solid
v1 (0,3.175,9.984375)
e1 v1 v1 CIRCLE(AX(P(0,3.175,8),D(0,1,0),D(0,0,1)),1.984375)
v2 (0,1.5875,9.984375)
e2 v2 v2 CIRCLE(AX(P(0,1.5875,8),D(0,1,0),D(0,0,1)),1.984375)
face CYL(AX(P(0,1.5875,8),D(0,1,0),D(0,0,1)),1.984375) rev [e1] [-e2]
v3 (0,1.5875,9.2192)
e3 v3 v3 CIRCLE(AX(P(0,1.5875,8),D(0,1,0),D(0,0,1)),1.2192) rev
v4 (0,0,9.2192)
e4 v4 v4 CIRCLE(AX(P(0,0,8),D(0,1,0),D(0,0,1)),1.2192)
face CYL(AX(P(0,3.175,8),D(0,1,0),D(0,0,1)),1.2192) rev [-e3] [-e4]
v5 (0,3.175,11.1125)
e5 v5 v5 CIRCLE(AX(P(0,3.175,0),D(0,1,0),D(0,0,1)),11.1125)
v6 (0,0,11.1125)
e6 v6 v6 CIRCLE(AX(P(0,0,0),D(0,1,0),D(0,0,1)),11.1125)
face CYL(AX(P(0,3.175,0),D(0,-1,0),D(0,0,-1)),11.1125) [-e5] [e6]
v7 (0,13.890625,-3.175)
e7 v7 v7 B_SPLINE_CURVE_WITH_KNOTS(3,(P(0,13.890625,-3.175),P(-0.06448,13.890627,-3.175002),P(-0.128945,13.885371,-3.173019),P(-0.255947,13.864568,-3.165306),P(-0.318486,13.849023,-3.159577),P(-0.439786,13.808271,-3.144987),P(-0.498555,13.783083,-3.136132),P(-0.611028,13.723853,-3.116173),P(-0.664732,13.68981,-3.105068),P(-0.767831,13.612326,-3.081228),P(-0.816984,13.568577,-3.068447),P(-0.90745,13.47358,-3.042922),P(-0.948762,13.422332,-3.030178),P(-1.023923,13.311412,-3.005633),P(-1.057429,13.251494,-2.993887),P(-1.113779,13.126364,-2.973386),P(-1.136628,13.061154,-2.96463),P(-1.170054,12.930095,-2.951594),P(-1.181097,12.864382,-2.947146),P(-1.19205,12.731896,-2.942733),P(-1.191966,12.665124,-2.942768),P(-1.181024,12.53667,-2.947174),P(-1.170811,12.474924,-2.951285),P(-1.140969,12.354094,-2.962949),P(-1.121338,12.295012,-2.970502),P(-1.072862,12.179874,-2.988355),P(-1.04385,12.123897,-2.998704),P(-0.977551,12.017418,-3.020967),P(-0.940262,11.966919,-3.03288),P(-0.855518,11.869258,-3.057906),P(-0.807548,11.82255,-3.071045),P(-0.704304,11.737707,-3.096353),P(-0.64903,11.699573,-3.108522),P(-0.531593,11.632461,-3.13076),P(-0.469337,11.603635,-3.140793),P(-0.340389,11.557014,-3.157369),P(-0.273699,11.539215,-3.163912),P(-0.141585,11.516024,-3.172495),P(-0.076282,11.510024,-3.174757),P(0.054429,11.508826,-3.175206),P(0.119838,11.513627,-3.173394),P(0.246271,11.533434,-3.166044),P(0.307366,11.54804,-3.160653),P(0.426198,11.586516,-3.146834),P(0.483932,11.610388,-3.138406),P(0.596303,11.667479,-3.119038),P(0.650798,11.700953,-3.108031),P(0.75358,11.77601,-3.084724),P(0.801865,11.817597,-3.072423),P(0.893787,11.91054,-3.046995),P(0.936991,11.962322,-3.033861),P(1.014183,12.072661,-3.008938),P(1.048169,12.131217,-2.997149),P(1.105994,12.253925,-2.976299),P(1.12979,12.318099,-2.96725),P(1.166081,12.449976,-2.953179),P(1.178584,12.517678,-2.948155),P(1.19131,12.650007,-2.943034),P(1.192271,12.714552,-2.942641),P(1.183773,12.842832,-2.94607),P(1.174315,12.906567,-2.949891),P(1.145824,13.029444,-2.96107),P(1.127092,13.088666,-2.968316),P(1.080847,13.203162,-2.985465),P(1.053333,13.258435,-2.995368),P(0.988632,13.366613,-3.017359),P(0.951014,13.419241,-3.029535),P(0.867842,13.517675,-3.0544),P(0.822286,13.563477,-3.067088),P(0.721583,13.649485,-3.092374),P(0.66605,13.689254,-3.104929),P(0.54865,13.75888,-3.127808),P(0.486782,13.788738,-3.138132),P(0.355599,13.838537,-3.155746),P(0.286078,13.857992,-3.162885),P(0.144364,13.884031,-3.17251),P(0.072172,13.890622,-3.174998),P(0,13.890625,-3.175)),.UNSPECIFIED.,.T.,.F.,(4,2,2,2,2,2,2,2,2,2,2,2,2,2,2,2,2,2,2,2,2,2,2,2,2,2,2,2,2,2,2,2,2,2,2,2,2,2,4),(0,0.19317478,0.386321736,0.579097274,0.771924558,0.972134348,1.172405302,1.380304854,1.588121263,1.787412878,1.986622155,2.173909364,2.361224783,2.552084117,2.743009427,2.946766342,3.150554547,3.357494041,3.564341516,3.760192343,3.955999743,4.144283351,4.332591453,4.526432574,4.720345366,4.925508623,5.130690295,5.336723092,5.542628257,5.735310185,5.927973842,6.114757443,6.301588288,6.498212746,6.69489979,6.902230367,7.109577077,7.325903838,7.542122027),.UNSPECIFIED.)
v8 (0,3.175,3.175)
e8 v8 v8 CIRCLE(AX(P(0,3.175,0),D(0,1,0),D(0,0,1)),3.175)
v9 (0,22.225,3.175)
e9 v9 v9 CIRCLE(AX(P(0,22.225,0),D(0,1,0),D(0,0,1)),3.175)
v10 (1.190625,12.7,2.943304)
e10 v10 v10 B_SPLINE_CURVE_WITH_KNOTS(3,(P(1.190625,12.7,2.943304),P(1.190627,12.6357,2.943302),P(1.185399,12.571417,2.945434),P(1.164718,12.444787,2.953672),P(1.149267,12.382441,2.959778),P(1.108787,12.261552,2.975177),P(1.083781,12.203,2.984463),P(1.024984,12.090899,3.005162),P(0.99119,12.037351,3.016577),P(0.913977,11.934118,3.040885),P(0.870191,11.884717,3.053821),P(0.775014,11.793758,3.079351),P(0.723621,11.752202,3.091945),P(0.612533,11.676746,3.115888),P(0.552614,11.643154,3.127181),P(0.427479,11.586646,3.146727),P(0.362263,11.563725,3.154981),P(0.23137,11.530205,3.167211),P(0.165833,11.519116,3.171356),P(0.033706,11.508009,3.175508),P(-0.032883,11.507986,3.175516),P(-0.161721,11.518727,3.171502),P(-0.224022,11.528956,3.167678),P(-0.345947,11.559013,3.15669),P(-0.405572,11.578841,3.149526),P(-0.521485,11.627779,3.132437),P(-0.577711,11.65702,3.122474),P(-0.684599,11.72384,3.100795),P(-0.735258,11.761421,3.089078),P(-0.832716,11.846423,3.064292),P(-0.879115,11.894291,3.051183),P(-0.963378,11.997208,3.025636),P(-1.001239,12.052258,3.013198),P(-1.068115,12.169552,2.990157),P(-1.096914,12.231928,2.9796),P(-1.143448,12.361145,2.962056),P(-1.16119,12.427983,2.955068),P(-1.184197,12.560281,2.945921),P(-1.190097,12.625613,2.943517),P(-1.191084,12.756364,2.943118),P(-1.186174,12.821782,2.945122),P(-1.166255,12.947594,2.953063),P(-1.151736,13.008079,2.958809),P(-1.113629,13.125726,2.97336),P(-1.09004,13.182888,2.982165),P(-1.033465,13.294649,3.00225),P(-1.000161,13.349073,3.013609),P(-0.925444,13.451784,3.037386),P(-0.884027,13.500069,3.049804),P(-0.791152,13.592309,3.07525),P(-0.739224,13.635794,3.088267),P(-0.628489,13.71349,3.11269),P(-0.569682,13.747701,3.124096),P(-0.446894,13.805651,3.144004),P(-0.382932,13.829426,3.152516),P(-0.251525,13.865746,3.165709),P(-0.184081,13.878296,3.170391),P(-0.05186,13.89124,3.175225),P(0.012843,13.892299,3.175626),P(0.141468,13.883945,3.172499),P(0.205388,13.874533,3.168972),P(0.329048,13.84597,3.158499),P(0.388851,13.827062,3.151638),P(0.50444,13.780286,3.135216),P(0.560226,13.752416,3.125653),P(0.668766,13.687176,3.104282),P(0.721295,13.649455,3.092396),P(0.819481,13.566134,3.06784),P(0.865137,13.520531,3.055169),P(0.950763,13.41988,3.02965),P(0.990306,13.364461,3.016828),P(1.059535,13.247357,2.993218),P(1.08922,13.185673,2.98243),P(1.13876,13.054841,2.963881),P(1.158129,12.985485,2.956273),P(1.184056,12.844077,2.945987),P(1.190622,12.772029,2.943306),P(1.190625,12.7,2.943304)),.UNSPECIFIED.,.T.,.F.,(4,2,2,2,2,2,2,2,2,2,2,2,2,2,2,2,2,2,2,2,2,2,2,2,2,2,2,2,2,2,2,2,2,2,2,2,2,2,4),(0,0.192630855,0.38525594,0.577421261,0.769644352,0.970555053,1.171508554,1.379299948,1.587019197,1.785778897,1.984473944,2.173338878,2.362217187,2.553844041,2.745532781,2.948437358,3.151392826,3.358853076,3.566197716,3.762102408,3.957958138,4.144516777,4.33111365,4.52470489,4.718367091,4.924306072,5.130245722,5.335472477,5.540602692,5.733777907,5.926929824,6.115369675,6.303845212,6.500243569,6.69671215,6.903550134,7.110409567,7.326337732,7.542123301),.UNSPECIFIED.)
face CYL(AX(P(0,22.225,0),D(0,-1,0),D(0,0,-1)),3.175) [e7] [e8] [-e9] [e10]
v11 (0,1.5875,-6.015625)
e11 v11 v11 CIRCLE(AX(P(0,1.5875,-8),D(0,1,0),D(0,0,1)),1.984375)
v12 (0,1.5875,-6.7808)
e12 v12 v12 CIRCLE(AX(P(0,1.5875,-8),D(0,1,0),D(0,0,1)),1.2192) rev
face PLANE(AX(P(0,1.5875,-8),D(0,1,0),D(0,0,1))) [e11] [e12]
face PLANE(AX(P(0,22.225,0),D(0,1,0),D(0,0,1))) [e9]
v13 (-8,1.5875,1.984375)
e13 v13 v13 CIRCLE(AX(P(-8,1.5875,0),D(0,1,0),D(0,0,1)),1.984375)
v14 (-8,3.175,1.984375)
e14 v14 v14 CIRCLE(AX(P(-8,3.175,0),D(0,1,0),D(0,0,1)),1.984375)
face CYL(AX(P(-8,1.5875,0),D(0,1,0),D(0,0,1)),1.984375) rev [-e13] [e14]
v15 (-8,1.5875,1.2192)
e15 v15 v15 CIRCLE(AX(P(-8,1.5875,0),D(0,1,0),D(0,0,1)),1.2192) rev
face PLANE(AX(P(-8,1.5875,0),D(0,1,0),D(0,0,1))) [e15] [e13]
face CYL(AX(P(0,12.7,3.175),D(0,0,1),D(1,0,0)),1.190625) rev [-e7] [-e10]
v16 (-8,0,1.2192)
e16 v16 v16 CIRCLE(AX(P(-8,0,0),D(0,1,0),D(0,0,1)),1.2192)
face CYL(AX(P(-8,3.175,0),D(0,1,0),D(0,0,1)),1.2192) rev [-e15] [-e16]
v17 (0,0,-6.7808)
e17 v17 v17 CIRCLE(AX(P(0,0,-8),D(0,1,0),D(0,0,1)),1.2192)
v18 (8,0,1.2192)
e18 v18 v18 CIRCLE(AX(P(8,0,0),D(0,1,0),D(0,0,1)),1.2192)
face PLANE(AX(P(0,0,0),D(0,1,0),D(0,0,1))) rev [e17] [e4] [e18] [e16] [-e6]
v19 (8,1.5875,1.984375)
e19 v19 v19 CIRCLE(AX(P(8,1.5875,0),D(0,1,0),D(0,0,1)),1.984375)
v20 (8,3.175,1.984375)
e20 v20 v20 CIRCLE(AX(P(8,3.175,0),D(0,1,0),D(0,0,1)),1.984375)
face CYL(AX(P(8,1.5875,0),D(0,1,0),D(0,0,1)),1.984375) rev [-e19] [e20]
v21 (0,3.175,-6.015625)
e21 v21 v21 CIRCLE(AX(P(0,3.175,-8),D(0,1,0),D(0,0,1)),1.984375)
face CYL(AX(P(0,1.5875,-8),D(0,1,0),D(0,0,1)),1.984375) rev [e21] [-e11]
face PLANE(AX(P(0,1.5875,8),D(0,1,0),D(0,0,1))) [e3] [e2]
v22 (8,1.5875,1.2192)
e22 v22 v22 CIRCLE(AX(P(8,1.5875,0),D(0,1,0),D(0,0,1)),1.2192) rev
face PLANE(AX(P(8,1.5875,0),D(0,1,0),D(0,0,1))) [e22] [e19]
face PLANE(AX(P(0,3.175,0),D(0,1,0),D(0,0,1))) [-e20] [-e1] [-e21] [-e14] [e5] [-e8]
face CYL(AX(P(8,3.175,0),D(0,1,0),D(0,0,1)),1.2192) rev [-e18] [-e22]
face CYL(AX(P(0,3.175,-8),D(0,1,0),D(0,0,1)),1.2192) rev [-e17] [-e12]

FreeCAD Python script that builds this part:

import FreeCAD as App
import Part
import Sketcher
from FreeCAD import Vector
Q = App.Units.Quantity

doc = App.newDocument("Part")
body = doc.addObject("PartDesign::Body", "Body")

# Sketch on XZ plane
sketch1 = doc.addObject("Sketcher::SketchObject", "Sketch")
body.addObject(sketch1)
sketch1.AttachmentSupport = (doc.XZ_Plane, [""])
sketch1.MapMode = "FlatFace"
sketch1.addGeometry(Part.Circle(Vector(0, 0, 0), Vector(0, 0, 1), 11.1125), False)
sketch1.addConstraint(Sketcher.Constraint("Coincident", 0, 3, -1, 1))
sketch1.addConstraint(Sketcher.Constraint("Diameter", 0, Q("0.875 in")))
pad1 = doc.addObject("PartDesign::Pad", "Pad")
body.addObject(pad1)
pad1.Profile = sketch1
pad1.Length = Q("0.125 in")
pad1.Reversed = True

# Sketch on XZ plane
sketch2 = doc.addObject("Sketcher::SketchObject", "Sketch001")
body.addObject(sketch2)
sketch2.AttachmentSupport = (doc.XZ_Plane, [""])
sketch2.MapMode = "FlatFace"
sketch2.AttachmentOffset = App.Placement(Vector(0, 0, -0.125 * 25.4), App.Rotation())
sketch2.addGeometry(Part.Circle(Vector(0, 0, 0), Vector(0, 0, 1), 3.175), False)
sketch2.addConstraint(Sketcher.Constraint("Coincident", 0, 3, -1, 1))
sketch2.addConstraint(Sketcher.Constraint("Diameter", 0, Q("0.25 in")))
pad2 = doc.addObject("PartDesign::Pad", "Pad001")
body.addObject(pad2)
pad2.Profile = sketch2
pad2.Length = Q("0.75 in")
pad2.Reversed = True

# Sketch on XZ plane
sketch3 = doc.addObject("Sketcher::SketchObject", "Sketch002")
body.addObject(sketch3)
sketch3.AttachmentSupport = (doc.XZ_Plane, [""])
sketch3.MapMode = "FlatFace"
sketch3.AttachmentOffset = App.Placement(Vector(0, 0, -0.125 * 25.4), App.Rotation())
sketch3.addGeometry(Part.Circle(Vector(0, 8, 0), Vector(0, 0, 1), 1.2192), False)
sketch3.addGeometry(Part.Circle(Vector(0, -8, 0), Vector(0, 0, 1), 1.2192), False)
sketch3.addGeometry(Part.Circle(Vector(-8, 0, 0), Vector(0, 0, 1), 1.2192), False)
sketch3.addGeometry(Part.Circle(Vector(8, 0, 0), Vector(0, 0, 1), 1.2192), False)
sketch3.addConstraint(Sketcher.Constraint("Equal", 0, 1))
sketch3.addConstraint(Sketcher.Constraint("Equal", 1, 2))
sketch3.addConstraint(Sketcher.Constraint("Equal", 2, 3))
sketch3.addConstraint(Sketcher.Constraint("Symmetric", 0, 3, 1, 3, -1, 1))
sketch3.addConstraint(Sketcher.Constraint("Symmetric", 2, 3, 3, 3, -1, 1))
sketch3.addConstraint(Sketcher.Constraint("PointOnObject", 0, 3, -2))
sketch3.addConstraint(Sketcher.Constraint("PointOnObject", 2, 3, -1))
sketch3.addConstraint(Sketcher.Constraint("Diameter", 0, Q("0.096 in")))
sketch3.addConstraint(Sketcher.Constraint("DistanceY", -1, 1, 0, 3, Q("8 mm")))
sketch3.addConstraint(Sketcher.Constraint("DistanceX", 2, 3, -1, 1, Q("8 mm")))
doc.recompute()
hole = doc.addObject("PartDesign::Hole", "Hole")
body.addObject(hole)
hole.Profile = sketch3
hole.ThreadType = "None"
hole.Diameter = Q("0.096 in")
hole.DepthType = "ThroughAll"
hole.Reversed = True

# Sketch on XZ plane
sketch4 = doc.addObject("Sketcher::SketchObject", "Sketch003")
body.addObject(sketch4)
sketch4.AttachmentSupport = (doc.XZ_Plane, [""])
sketch4.MapMode = "FlatFace"
sketch4.AttachmentOffset = App.Placement(Vector(0, 0, -0.125 * 25.4), App.Rotation())
sketch4.addGeometry(Part.Circle(Vector(0, 8, 0), Vector(0, 0, 1), 1.984375), False)
sketch4.addGeometry(Part.Circle(Vector(8, 0, 0), Vector(0, 0, 1), 1.984375), False)
sketch4.addGeometry(Part.Circle(Vector(0, -8, 0), Vector(0, 0, 1), 1.984375), False)
sketch4.addGeometry(Part.Circle(Vector(-8, 0, 0), Vector(0, 0, 1), 1.984375), False)
sketch4.addConstraint(Sketcher.Constraint("Equal", 0, 1))
sketch4.addConstraint(Sketcher.Constraint("Equal", 1, 2))
sketch4.addConstraint(Sketcher.Constraint("Equal", 2, 3))
sketch4.addConstraint(Sketcher.Constraint("Symmetric", 0, 3, 2, 3, -1, 1))
sketch4.addConstraint(Sketcher.Constraint("Symmetric", 1, 3, 3, 3, -1, 1))
sketch4.addConstraint(Sketcher.Constraint("PointOnObject", 0, 3, -2))
sketch4.addConstraint(Sketcher.Constraint("PointOnObject", 1, 3, -1))
sketch4.addConstraint(Sketcher.Constraint("Diameter", 0, Q("0.15625 in")))
sketch4.addConstraint(Sketcher.Constraint("DistanceY", -1, 1, 0, 3, Q("8 mm")))
sketch4.addConstraint(Sketcher.Constraint("DistanceX", -1, 1, 1, 3, Q("8 mm")))
pocket1 = doc.addObject("PartDesign::Pocket", "Pocket")
body.addObject(pocket1)
pocket1.Profile = sketch4
pocket1.Length = Q("0.0625 in")
pocket1.Reversed = True

# Sketch on XY plane
sketch5 = doc.addObject("Sketcher::SketchObject", "Sketch004")
body.addObject(sketch5)
sketch5.AttachmentSupport = (doc.XY_Plane, [""])
sketch5.MapMode = "FlatFace"
sketch5.AttachmentOffset = App.Placement(Vector(0, 0, 0.125 * 25.4), App.Rotation())
sketch5.addGeometry(Part.Circle(Vector(0, 12.7, 0), Vector(0, 0, 1), 1.190625), False)
sketch5.addConstraint(Sketcher.Constraint("PointOnObject", 0, 3, -2))
sketch5.addConstraint(Sketcher.Constraint("Diameter", 0, Q("0.09375 in")))
sketch5.addConstraint(Sketcher.Constraint("DistanceY", -1, 1, 0, 3, Q("0.5 in")))
doc.recompute()
hole2 = doc.addObject("PartDesign::Hole", "Hole001")
body.addObject(hole2)
hole2.Profile = sketch5
hole2.ThreadType = "None"
hole2.Diameter = Q("0.09375 in")
hole2.DepthType = "ThroughAll"

doc.recompute()
